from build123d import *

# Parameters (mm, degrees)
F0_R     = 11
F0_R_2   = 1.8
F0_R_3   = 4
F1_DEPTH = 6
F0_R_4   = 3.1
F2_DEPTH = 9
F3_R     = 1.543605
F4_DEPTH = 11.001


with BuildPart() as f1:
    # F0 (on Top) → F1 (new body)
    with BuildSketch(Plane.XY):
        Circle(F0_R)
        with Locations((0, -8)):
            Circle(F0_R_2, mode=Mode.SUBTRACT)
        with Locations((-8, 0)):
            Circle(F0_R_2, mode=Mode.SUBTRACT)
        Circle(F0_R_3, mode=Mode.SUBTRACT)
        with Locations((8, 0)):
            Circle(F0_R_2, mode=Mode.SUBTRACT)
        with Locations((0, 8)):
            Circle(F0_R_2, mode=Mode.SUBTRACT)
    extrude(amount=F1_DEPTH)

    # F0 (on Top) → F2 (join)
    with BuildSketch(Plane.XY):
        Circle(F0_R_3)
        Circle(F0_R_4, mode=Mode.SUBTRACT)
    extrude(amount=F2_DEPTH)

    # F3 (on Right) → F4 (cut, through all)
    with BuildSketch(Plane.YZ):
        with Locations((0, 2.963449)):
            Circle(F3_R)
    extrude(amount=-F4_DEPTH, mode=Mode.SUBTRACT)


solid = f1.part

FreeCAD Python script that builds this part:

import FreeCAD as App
import Part
import Sketcher

V = App.Vector
Q = App.Units.Quantity

doc = App.newDocument("Part")
body = doc.addObject("PartDesign::Body", "Body")

# Sketch on XY plane
sketch1 = doc.addObject("Sketcher::SketchObject", "Sketch")
body.addObject(sketch1)
sketch1.AttachmentSupport = (doc.XY_Plane, [""])
sketch1.MapMode = "FlatFace"
sketch1.addGeometry(Part.Circle(V(0, 0, 0), V(0, 0, 1), 11), False)
sketch1.addGeometry(Part.Circle(V(0, -8, 0), V(0, 0, 1), 1.8), False)
sketch1.addGeometry(Part.Circle(V(-8, 0, 0), V(0, 0, 1), 1.8), False)
sketch1.addGeometry(Part.Circle(V(0, 0, 0), V(0, 0, 1), 4), False)
sketch1.addGeometry(Part.Circle(V(8, 0, 0), V(0, 0, 1), 1.8), False)
sketch1.addGeometry(Part.Circle(V(0, 8, 0), V(0, 0, 1), 1.8), False)
sketch1.addConstraint(Sketcher.Constraint("Coincident", 0, 3, -1, 1))
sketch1.addConstraint(Sketcher.Constraint("Coincident", 3, 3, -1, 1))
sketch1.addConstraint(Sketcher.Constraint("Equal", 1, 2))
sketch1.addConstraint(Sketcher.Constraint("Equal", 2, 4))
sketch1.addConstraint(Sketcher.Constraint("Equal", 4, 5))
sketch1.addConstraint(Sketcher.Constraint("Symmetric", 2, 3, 4, 3, -1, 1))
sketch1.addConstraint(Sketcher.Constraint("Symmetric", 1, 3, 5, 3, -1, 1))
sketch1.addConstraint(Sketcher.Constraint("PointOnObject", 1, 3, -2))
sketch1.addConstraint(Sketcher.Constraint("PointOnObject", 2, 3, -1))
sketch1.addConstraint(Sketcher.Constraint("Diameter", 0, Q("22 mm")))
sketch1.addConstraint(Sketcher.Constraint("Diameter", 3, Q("8 mm")))
sketch1.addConstraint(Sketcher.Constraint("Diameter", 1, Q("3.6 mm")))
sketch1.addConstraint(Sketcher.Constraint("DistanceY", 1, 3, -1, 1, Q("8 mm")))
sketch1.addConstraint(Sketcher.Constraint("DistanceX", 2, 3, -1, 1, Q("8 mm")))
pad1 = doc.addObject("PartDesign::Pad", "Pad")
body.addObject(pad1)
pad1.Profile = sketch1
pad1.Length = 6

# Sketch on XY plane
sketch2 = doc.addObject("Sketcher::SketchObject", "Sketch001")
body.addObject(sketch2)
sketch2.AttachmentSupport = (doc.XY_Plane, [""])
sketch2.MapMode = "FlatFace"
sketch2.addGeometry(Part.Circle(V(0, 0, 0), V(0, 0, 1), 4), False)
sketch2.addGeometry(Part.Circle(V(0, 0, 0), V(0, 0, 1), 3.1), False)
sketch2.addConstraint(Sketcher.Constraint("Coincident", 0, 3, -1, 1))
sketch2.addConstraint(Sketcher.Constraint("Coincident", 1, 3, -1, 1))
sketch2.addConstraint(Sketcher.Constraint("Diameter", 0, Q("8 mm")))
sketch2.addConstraint(Sketcher.Constraint("Diameter", 1, Q("6.2 mm")))
pad2 = doc.addObject("PartDesign::Pad", "Pad001")
body.addObject(pad2)
pad2.Profile = sketch2
pad2.Length = 9

# Sketch on YZ plane
sketch3 = doc.addObject("Sketcher::SketchObject", "Sketch002")
body.addObject(sketch3)
sketch3.AttachmentSupport = (doc.YZ_Plane, [""])
sketch3.MapMode = "FlatFace"
sketch3.addGeometry(Part.Circle(V(0, 2.963449, 0), V(0, 0, 1), 1.543605), False)
sketch3.addConstraint(Sketcher.Constraint("PointOnObject", 0, 3, -2))
sketch3.addConstraint(Sketcher.Constraint("Diameter", 0, Q("3.08721 mm")))
sketch3.addConstraint(Sketcher.Constraint("DistanceY", -1, 1, 0, 3, Q("2.963449 mm")))
pocket1 = doc.addObject("PartDesign::Pocket", "Pocket")
body.addObject(pocket1)
pocket1.Profile = sketch3
pocket1.Type = "ThroughAll"

doc.recompute()
